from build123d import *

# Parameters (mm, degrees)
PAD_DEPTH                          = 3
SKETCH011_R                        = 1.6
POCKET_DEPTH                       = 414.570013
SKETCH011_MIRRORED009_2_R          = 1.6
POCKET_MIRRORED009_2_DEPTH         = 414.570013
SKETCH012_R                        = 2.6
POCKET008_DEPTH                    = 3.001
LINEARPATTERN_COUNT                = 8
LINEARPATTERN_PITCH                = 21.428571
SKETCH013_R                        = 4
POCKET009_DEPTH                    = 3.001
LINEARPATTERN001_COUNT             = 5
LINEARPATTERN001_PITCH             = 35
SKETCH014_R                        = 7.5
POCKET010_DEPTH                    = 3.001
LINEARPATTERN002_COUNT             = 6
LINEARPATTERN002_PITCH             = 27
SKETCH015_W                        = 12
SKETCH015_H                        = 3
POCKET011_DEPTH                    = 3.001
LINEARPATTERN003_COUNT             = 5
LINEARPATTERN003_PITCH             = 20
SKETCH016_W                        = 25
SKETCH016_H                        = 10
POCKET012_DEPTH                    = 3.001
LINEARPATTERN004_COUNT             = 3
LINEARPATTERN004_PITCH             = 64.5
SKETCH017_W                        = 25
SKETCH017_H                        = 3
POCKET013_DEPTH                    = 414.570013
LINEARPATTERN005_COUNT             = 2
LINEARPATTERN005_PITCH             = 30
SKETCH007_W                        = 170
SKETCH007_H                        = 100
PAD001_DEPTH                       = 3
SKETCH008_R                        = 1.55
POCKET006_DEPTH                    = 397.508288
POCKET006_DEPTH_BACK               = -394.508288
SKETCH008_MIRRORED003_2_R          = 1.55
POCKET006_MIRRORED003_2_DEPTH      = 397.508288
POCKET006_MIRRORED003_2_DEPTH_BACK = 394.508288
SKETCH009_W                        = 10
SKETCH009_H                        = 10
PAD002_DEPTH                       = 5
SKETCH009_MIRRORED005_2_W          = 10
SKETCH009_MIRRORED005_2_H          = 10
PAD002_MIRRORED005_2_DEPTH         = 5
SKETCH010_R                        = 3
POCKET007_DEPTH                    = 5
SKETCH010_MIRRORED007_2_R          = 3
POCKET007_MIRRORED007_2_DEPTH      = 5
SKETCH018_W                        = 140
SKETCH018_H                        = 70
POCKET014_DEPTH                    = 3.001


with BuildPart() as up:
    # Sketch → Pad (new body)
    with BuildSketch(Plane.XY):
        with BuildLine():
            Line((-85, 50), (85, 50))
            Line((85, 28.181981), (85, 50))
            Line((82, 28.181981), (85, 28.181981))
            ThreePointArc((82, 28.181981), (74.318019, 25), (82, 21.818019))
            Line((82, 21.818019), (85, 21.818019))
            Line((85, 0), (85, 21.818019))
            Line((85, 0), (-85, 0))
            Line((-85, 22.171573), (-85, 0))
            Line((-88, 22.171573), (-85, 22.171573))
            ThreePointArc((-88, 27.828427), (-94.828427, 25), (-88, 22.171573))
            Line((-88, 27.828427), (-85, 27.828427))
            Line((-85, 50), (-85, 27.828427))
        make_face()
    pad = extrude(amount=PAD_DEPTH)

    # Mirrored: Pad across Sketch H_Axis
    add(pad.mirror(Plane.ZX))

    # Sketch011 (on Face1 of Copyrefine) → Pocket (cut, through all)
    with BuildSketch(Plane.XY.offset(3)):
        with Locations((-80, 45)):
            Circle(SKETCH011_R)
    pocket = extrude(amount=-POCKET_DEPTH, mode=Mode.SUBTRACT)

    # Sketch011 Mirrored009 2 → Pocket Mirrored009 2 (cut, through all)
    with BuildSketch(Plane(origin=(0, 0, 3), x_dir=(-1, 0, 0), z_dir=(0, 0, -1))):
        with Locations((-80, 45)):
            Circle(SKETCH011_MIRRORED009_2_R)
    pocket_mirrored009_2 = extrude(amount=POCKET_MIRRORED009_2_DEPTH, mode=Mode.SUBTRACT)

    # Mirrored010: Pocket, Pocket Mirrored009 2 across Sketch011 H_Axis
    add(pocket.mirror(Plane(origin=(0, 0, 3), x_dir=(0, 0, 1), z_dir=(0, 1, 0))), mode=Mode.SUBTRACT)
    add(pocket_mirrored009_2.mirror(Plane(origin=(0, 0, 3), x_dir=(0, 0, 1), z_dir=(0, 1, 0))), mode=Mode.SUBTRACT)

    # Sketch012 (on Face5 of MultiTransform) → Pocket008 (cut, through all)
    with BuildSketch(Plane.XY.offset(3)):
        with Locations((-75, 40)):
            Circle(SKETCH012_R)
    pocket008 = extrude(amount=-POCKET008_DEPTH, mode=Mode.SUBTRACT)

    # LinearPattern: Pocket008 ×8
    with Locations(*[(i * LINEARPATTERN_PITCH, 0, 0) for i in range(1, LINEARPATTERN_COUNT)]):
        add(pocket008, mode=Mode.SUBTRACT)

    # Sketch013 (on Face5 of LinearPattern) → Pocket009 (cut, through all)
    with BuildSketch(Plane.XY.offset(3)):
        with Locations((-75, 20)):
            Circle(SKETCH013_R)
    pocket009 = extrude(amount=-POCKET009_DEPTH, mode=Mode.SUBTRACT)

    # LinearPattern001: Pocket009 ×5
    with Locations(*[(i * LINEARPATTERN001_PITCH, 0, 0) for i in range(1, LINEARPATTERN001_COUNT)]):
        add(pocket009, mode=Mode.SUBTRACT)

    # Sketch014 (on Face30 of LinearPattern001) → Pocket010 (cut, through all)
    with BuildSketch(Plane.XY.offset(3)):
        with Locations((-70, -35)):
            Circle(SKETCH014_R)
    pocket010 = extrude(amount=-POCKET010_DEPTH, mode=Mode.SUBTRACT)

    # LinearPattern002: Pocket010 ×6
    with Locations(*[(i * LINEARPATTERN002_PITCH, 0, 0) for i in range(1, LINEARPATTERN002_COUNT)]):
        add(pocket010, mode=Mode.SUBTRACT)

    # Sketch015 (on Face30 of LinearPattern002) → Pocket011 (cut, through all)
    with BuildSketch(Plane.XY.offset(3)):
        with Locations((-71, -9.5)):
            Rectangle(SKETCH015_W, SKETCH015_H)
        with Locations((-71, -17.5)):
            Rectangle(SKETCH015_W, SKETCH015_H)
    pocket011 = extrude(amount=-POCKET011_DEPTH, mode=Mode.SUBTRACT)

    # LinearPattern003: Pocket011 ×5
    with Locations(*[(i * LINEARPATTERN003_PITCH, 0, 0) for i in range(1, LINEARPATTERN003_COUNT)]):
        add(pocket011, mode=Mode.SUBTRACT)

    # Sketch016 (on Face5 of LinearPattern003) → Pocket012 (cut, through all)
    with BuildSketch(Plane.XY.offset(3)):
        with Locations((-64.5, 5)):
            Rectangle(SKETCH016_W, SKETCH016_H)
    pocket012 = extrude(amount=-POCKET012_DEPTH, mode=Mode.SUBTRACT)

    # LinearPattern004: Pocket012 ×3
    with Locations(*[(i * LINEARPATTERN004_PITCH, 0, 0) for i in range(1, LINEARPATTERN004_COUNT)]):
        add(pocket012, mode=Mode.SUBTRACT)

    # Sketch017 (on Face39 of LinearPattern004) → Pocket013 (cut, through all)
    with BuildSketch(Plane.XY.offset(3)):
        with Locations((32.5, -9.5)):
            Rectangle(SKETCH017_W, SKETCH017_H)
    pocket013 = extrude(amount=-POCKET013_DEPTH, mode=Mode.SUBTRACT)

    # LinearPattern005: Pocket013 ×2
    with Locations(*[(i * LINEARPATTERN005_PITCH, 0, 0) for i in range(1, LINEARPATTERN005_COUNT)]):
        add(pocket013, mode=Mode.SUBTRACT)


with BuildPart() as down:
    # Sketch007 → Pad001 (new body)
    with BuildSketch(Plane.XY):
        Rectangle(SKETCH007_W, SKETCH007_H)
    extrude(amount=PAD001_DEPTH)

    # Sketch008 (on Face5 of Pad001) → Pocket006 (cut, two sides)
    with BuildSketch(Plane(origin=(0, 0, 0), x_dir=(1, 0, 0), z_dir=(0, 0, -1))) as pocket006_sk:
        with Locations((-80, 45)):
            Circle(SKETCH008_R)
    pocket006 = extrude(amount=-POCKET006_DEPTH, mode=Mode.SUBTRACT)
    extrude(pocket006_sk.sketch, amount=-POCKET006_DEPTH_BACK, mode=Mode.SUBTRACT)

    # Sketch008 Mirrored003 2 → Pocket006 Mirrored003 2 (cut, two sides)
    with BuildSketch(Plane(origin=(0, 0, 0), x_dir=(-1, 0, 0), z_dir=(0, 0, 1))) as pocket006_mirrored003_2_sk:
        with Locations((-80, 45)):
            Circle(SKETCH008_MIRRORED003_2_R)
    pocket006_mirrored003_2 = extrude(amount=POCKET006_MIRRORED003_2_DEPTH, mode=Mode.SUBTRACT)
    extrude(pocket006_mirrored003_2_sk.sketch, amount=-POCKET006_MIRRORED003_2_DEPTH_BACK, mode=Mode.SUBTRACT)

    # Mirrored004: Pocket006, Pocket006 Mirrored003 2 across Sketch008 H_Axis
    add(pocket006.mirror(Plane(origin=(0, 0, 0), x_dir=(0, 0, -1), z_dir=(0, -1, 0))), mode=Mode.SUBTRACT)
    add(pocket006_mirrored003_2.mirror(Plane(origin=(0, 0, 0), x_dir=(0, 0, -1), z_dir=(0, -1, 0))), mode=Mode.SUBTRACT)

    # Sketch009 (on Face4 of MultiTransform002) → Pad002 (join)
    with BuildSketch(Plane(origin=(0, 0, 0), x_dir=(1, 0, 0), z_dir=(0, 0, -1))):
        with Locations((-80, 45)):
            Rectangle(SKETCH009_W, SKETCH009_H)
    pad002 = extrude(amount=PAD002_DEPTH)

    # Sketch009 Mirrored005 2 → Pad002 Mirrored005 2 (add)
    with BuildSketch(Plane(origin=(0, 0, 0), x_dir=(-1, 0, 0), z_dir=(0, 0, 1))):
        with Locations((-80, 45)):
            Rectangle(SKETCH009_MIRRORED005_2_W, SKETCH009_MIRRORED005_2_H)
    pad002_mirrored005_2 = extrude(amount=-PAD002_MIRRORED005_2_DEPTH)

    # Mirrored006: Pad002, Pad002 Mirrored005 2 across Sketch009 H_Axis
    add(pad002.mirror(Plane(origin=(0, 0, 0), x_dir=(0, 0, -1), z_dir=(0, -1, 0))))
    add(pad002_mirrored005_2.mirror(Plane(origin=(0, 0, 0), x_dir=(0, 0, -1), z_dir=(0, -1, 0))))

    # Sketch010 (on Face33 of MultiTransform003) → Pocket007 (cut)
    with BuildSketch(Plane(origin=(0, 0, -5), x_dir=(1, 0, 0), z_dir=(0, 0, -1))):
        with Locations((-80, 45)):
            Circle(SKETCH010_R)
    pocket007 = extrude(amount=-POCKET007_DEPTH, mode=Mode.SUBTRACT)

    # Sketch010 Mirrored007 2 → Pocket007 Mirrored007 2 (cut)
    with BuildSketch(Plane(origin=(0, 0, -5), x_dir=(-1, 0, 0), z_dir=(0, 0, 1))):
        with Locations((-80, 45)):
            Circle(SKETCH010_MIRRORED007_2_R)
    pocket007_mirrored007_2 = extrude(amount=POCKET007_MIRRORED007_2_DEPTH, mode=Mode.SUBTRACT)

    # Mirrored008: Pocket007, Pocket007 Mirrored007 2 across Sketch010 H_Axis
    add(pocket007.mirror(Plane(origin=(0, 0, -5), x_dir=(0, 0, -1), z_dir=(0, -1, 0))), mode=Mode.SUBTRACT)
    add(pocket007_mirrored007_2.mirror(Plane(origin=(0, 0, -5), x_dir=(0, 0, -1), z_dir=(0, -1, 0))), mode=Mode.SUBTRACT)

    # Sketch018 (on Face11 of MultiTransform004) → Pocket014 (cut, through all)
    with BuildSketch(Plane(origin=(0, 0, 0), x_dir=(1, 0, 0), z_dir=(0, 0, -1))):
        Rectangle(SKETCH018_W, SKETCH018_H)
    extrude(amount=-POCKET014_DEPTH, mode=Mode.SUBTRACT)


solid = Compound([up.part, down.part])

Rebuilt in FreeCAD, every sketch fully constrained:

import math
import FreeCAD as App
import Part
import Sketcher
Q = App.Units.Quantity

doc = App.newDocument("Part")
body = doc.addObject("PartDesign::Body", "Body")

sketch1 = doc.addObject("Sketcher::SketchObject", "Sketch")
body.addObject(sketch1)
sketch1.AttachmentSupport = (doc.XY_Plane, [""])
sketch1.MapMode = "FlatFace"
sketch1.addGeometry(Part.LineSegment(App.Vector(85, 50, 0), App.Vector(-85, 50, 0)), False)
sketch1.addGeometry(Part.LineSegment(App.Vector(-85, 50, 0), App.Vector(-85, 27.828427, 0)), False)
sketch1.addGeometry(Part.LineSegment(App.Vector(-85, 27.828427, 0), App.Vector(-88, 27.828427, 0)), False)
sketch1.addGeometry(Part.ArcOfCircle(Part.Circle(App.Vector(-90.828427, 25, 0), App.Vector(0, 0, 1), 4), math.radians(44.999999), math.radians(315.000001)), False)
sketch1.addGeometry(Part.LineSegment(App.Vector(-88, 22.171573, 0), App.Vector(-85, 22.171573, 0)), False)
sketch1.addGeometry(Part.LineSegment(App.Vector(-85, 22.171573, 0), App.Vector(-85, 0, 0)), False)
sketch1.addGeometry(Part.LineSegment(App.Vector(-85, 0, 0), App.Vector(85, 0, 0)), False)
sketch1.addGeometry(Part.LineSegment(App.Vector(85, 0, 0), App.Vector(85, 21.818019, 0)), False)
sketch1.addGeometry(Part.LineSegment(App.Vector(85, 21.818019, 0), App.Vector(82, 21.818019, 0)), False)
sketch1.addGeometry(Part.ArcOfCircle(Part.Circle(App.Vector(78.818019, 25, 0), App.Vector(0, 0, 1), 4.5), math.radians(45.000004), math.radians(314.999996)), False)
sketch1.addGeometry(Part.LineSegment(App.Vector(82, 28.181981, 0), App.Vector(85, 28.181981, 0)), False)
sketch1.addGeometry(Part.LineSegment(App.Vector(85, 28.181981, 0), App.Vector(85, 50, 0)), False)
sketch1.addConstraint(Sketcher.Constraint("Coincident", 0, 2, 1, 1))
sketch1.addConstraint(Sketcher.Constraint("Coincident", 1, 2, 2, 1))
sketch1.addConstraint(Sketcher.Constraint("Coincident", 2, 2, 3, 1))
sketch1.addConstraint(Sketcher.Constraint("Coincident", 3, 2, 4, 1))
sketch1.addConstraint(Sketcher.Constraint("Coincident", 4, 2, 5, 1))
sketch1.addConstraint(Sketcher.Constraint("Coincident", 5, 2, 6, 1))
sketch1.addConstraint(Sketcher.Constraint("Coincident", 6, 2, 7, 1))
sketch1.addConstraint(Sketcher.Constraint("Coincident", 7, 2, 8, 1))
sketch1.addConstraint(Sketcher.Constraint("Coincident", 8, 2, 9, 2))
sketch1.addConstraint(Sketcher.Constraint("Coincident", 9, 1, 10, 1))
sketch1.addConstraint(Sketcher.Constraint("Coincident", 10, 2, 11, 1))
sketch1.addConstraint(Sketcher.Constraint("Coincident", 11, 2, 0, 1))
sketch1.addConstraint(Sketcher.Constraint("Horizontal", 0))
sketch1.addConstraint(Sketcher.Constraint("Vertical", 1))
sketch1.addConstraint(Sketcher.Constraint("Horizontal", 2))
sketch1.addConstraint(Sketcher.Constraint("Horizontal", 4))
sketch1.addConstraint(Sketcher.Constraint("Vertical", 5))
sketch1.addConstraint(Sketcher.Constraint("Horizontal", 6))
sketch1.addConstraint(Sketcher.Constraint("Vertical", 7))
sketch1.addConstraint(Sketcher.Constraint("Horizontal", 8))
sketch1.addConstraint(Sketcher.Constraint("Horizontal", 10))
sketch1.addConstraint(Sketcher.Constraint("Vertical", 11))
sketch1.addConstraint(Sketcher.Constraint("Symmetric", 5, 2, 6, 2, -1, 1))
sketch1.addConstraint(Sketcher.Constraint("Horizontal", 3, 3, 9, 3))
sketch1.addConstraint(Sketcher.Constraint("Vertical", 2, 2, 3, 2))
sketch1.addConstraint(Sketcher.Constraint("Vertical", 1, 2, 4, 2))
sketch1.addConstraint(Sketcher.Constraint("Vertical", 8, 2, 9, 1))
sketch1.addConstraint(Sketcher.Constraint("Vertical", 7, 2, 10, 2))
sketch1.addConstraint(Sketcher.Constraint("Equal", 4, 8))
sketch1.addConstraint(Sketcher.Constraint("Equal", 1, 5))
sketch1.addConstraint(Sketcher.Constraint("Radius", 3, Q("4 mm")))
sketch1.addConstraint(Sketcher.Constraint("Radius", 9, Q("4.5 mm")))
sketch1.addConstraint(Sketcher.Constraint("DistanceX", 0, 2, 0, 1, Q("170 mm")))
sketch1.addConstraint(Sketcher.Constraint("DistanceX", 2, 2, 2, 1, Q("3 mm")))
sketch1.addConstraint(Sketcher.Constraint("DistanceY", -1, 1, 3, 3, Q("25 mm")))
sketch1.addConstraint(Sketcher.Constraint("DistanceY", 7, 1, 7, 2, Q("21.818019 mm")))
sketch1.addConstraint(Sketcher.Constraint("DistanceY", 1, 2, 1, 1, Q("22.171573 mm")))
pad1 = doc.addObject("PartDesign::Pad", "Pad")
body.addObject(pad1)
pad1.Profile = sketch1
pad1.Length = 3
doc.recompute()

mirrored = doc.addObject("PartDesign::Mirrored", "Mirrored")
body.addObject(mirrored)
mirrored.Originals = [pad1]
mirrored.MirrorPlane = (doc.XZ_Plane, [""])
body.Tip = mirrored

sketch2 = doc.addObject("Sketcher::SketchObject", "Sketch001")
body.addObject(sketch2)
sketch2.AttachmentSupport = (doc.XY_Plane, [""])
sketch2.MapMode = "FlatFace"
sketch2.AttachmentOffset = App.Placement(App.Vector(0, 0, 3), App.Rotation())
sketch2.addGeometry(Part.Circle(App.Vector(-80, 45, 0), App.Vector(0, 0, 1), 1.6), False)
sketch2.addConstraint(Sketcher.Constraint("Diameter", 0, Q("3.2 mm")))
sketch2.addConstraint(Sketcher.Constraint("DistanceX", 0, 3, -1, 1, Q("80 mm")))
sketch2.addConstraint(Sketcher.Constraint("DistanceY", -1, 1, 0, 3, Q("45 mm")))
pocket1 = doc.addObject("PartDesign::Pocket", "Pocket")
body.addObject(pocket1)
pocket1.Profile = sketch2
pocket1.Type = "ThroughAll"

sketch3 = doc.addObject("Sketcher::SketchObject", "Sketch002")
body.addObject(sketch3)
sketch3.AttachmentSupport = (doc.XY_Plane, [""])
sketch3.MapMode = "FlatFace"
sketch3.AttachmentOffset = App.Placement(App.Vector(0, 0, 3), App.Rotation())
sketch3.addGeometry(Part.Circle(App.Vector(80, 45, 0), App.Vector(0, 0, 1), 1.6), False)
sketch3.addConstraint(Sketcher.Constraint("Diameter", 0, Q("3.2 mm")))
sketch3.addConstraint(Sketcher.Constraint("DistanceX", -1, 1, 0, 3, Q("80 mm")))
sketch3.addConstraint(Sketcher.Constraint("DistanceY", -1, 1, 0, 3, Q("45 mm")))
pocket2 = doc.addObject("PartDesign::Pocket", "Pocket001")
body.addObject(pocket2)
pocket2.Profile = sketch3
pocket2.Type = "ThroughAll"
doc.recompute()

mirrored2 = doc.addObject("PartDesign::Mirrored", "Mirrored001")
body.addObject(mirrored2)
mirrored2.Originals = [pocket1, pocket2]
mirrored2.MirrorPlane = (doc.XZ_Plane, [""])
body.Tip = mirrored2

sketch4 = doc.addObject("Sketcher::SketchObject", "Sketch003")
body.addObject(sketch4)
sketch4.AttachmentSupport = (doc.XY_Plane, [""])
sketch4.MapMode = "FlatFace"
sketch4.AttachmentOffset = App.Placement(App.Vector(0, 0, 3), App.Rotation())
sketch4.addGeometry(Part.Circle(App.Vector(-75, 40, 0), App.Vector(0, 0, 1), 2.6), False)
sketch4.addConstraint(Sketcher.Constraint("Diameter", 0, Q("5.2 mm")))
sketch4.addConstraint(Sketcher.Constraint("DistanceX", 0, 3, -1, 1, Q("75 mm")))
sketch4.addConstraint(Sketcher.Constraint("DistanceY", -1, 1, 0, 3, Q("40 mm")))
pocket3 = doc.addObject("PartDesign::Pocket", "Pocket002")
body.addObject(pocket3)
pocket3.Profile = sketch4
pocket3.Type = "ThroughAll"
doc.recompute()

linearpattern = doc.addObject("PartDesign::LinearPattern", "LinearPattern")
body.addObject(linearpattern)
linearpattern.Originals = [pocket3]
linearpattern.Direction = (doc.X_Axis, [""])
linearpattern.Mode = "offset"
linearpattern.Offset = 21.428571
linearpattern.Occurrences = 8
body.Tip = linearpattern

sketch5 = doc.addObject("Sketcher::SketchObject", "Sketch004")
body.addObject(sketch5)
sketch5.AttachmentSupport = (doc.XY_Plane, [""])
sketch5.MapMode = "FlatFace"
sketch5.AttachmentOffset = App.Placement(App.Vector(0, 0, 3), App.Rotation())
sketch5.addGeometry(Part.Circle(App.Vector(-75, 20, 0), App.Vector(0, 0, 1), 4), False)
sketch5.addConstraint(Sketcher.Constraint("Diameter", 0, Q("8 mm")))
sketch5.addConstraint(Sketcher.Constraint("DistanceX", 0, 3, -1, 1, Q("75 mm")))
sketch5.addConstraint(Sketcher.Constraint("DistanceY", -1, 1, 0, 3, Q("20 mm")))
pocket4 = doc.addObject("PartDesign::Pocket", "Pocket003")
body.addObject(pocket4)
pocket4.Profile = sketch5
pocket4.Type = "ThroughAll"
doc.recompute()

linearpattern2 = doc.addObject("PartDesign::LinearPattern", "LinearPattern001")
body.addObject(linearpattern2)
linearpattern2.Originals = [pocket4]
linearpattern2.Direction = (doc.X_Axis, [""])
linearpattern2.Mode = "offset"
linearpattern2.Offset = 35
linearpattern2.Occurrences = 5
body.Tip = linearpattern2

sketch6 = doc.addObject("Sketcher::SketchObject", "Sketch005")
body.addObject(sketch6)
sketch6.AttachmentSupport = (doc.XY_Plane, [""])
sketch6.MapMode = "FlatFace"
sketch6.AttachmentOffset = App.Placement(App.Vector(0, 0, 3), App.Rotation())
sketch6.addGeometry(Part.Circle(App.Vector(-70, -35, 0), App.Vector(0, 0, 1), 7.5), False)
sketch6.addConstraint(Sketcher.Constraint("Diameter", 0, Q("15 mm")))
sketch6.addConstraint(Sketcher.Constraint("DistanceX", 0, 3, -1, 1, Q("70 mm")))
sketch6.addConstraint(Sketcher.Constraint("DistanceY", 0, 3, -1, 1, Q("35 mm")))
pocket5 = doc.addObject("PartDesign::Pocket", "Pocket004")
body.addObject(pocket5)
pocket5.Profile = sketch6
pocket5.Type = "ThroughAll"
doc.recompute()

linearpattern3 = doc.addObject("PartDesign::LinearPattern", "LinearPattern002")
body.addObject(linearpattern3)
linearpattern3.Originals = [pocket5]
linearpattern3.Direction = (doc.X_Axis, [""])
linearpattern3.Mode = "offset"
linearpattern3.Offset = 27
linearpattern3.Occurrences = 6
body.Tip = linearpattern3

sketch7 = doc.addObject("Sketcher::SketchObject", "Sketch006")
body.addObject(sketch7)
sketch7.AttachmentSupport = (doc.XY_Plane, [""])
sketch7.MapMode = "FlatFace"
sketch7.AttachmentOffset = App.Placement(App.Vector(0, 0, 3), App.Rotation())
sketch7.addGeometry(Part.LineSegment(App.Vector(-77, -8, 0), App.Vector(-77, -11, 0)), False)
sketch7.addGeometry(Part.LineSegment(App.Vector(-77, -11, 0), App.Vector(-65, -11, 0)), False)
sketch7.addGeometry(Part.LineSegment(App.Vector(-65, -11, 0), App.Vector(-65, -8, 0)), False)
sketch7.addGeometry(Part.LineSegment(App.Vector(-65, -8, 0), App.Vector(-77, -8, 0)), False)
sketch7.addGeometry(Part.LineSegment(App.Vector(-77, -16, 0), App.Vector(-77, -19, 0)), False)
sketch7.addGeometry(Part.LineSegment(App.Vector(-77, -19, 0), App.Vector(-65, -19, 0)), False)
sketch7.addGeometry(Part.LineSegment(App.Vector(-65, -19, 0), App.Vector(-65, -16, 0)), False)
sketch7.addGeometry(Part.LineSegment(App.Vector(-65, -16, 0), App.Vector(-77, -16, 0)), False)
sketch7.addConstraint(Sketcher.Constraint("Coincident", 0, 2, 1, 1))
sketch7.addConstraint(Sketcher.Constraint("Coincident", 1, 2, 2, 1))
sketch7.addConstraint(Sketcher.Constraint("Coincident", 2, 2, 3, 1))
sketch7.addConstraint(Sketcher.Constraint("Coincident", 3, 2, 0, 1))
sketch7.addConstraint(Sketcher.Constraint("Coincident", 4, 2, 5, 1))
sketch7.addConstraint(Sketcher.Constraint("Coincident", 5, 2, 6, 1))
sketch7.addConstraint(Sketcher.Constraint("Coincident", 6, 2, 7, 1))
sketch7.addConstraint(Sketcher.Constraint("Coincident", 7, 2, 4, 1))
sketch7.addConstraint(Sketcher.Constraint("Vertical", 0))
sketch7.addConstraint(Sketcher.Constraint("Horizontal", 1))
sketch7.addConstraint(Sketcher.Constraint("Vertical", 2))
sketch7.addConstraint(Sketcher.Constraint("Horizontal", 3))
sketch7.addConstraint(Sketcher.Constraint("Vertical", 4))
sketch7.addConstraint(Sketcher.Constraint("Horizontal", 5))
sketch7.addConstraint(Sketcher.Constraint("Vertical", 6))
sketch7.addConstraint(Sketcher.Constraint("Horizontal", 7))
sketch7.addConstraint(Sketcher.Constraint("Vertical", 3, 2, 4, 2))
sketch7.addConstraint(Sketcher.Constraint("Vertical", 2, 2, 5, 2))
sketch7.addConstraint(Sketcher.Constraint("Equal", 2, 4))
sketch7.addConstraint(Sketcher.Constraint("DistanceX", 1, 1, 1, 2, Q("12 mm")))
sketch7.addConstraint(Sketcher.Constraint("DistanceY", 0, 2, 0, 1, Q("3 mm")))
sketch7.addConstraint(Sketcher.Constraint("DistanceX", 0, 2, -1, 1, Q("77 mm")))
sketch7.addConstraint(Sketcher.Constraint("DistanceY", 0, 2, -1, 1, Q("11 mm")))
sketch7.addConstraint(Sketcher.Constraint("DistanceY", 4, 2, -1, 1, Q("19 mm")))
pocket6 = doc.addObject("PartDesign::Pocket", "Pocket005")
body.addObject(pocket6)
pocket6.Profile = sketch7
pocket6.Type = "ThroughAll"
doc.recompute()

linearpattern4 = doc.addObject("PartDesign::LinearPattern", "LinearPattern003")
body.addObject(linearpattern4)
linearpattern4.Originals = [pocket6]
linearpattern4.Direction = (doc.X_Axis, [""])
linearpattern4.Mode = "offset"
linearpattern4.Offset = 20
linearpattern4.Occurrences = 5
body.Tip = linearpattern4

sketch8 = doc.addObject("Sketcher::SketchObject", "Sketch007")
body.addObject(sketch8)
sketch8.AttachmentSupport = (doc.XY_Plane, [""])
sketch8.MapMode = "FlatFace"
sketch8.AttachmentOffset = App.Placement(App.Vector(0, 0, 3), App.Rotation())
sketch8.addGeometry(Part.LineSegment(App.Vector(-77, 10, 0), App.Vector(-77, 0, 0)), False)
sketch8.addGeometry(Part.LineSegment(App.Vector(-77, 0, 0), App.Vector(-52, 0, 0)), False)
sketch8.addGeometry(Part.LineSegment(App.Vector(-52, 0, 0), App.Vector(-52, 10, 0)), False)
sketch8.addGeometry(Part.LineSegment(App.Vector(-52, 10, 0), App.Vector(-77, 10, 0)), False)
sketch8.addConstraint(Sketcher.Constraint("Coincident", 0, 2, 1, 1))
sketch8.addConstraint(Sketcher.Constraint("Coincident", 1, 2, 2, 1))
sketch8.addConstraint(Sketcher.Constraint("Coincident", 2, 2, 3, 1))
sketch8.addConstraint(Sketcher.Constraint("Coincident", 3, 2, 0, 1))
sketch8.addConstraint(Sketcher.Constraint("Vertical", 0))
sketch8.addConstraint(Sketcher.Constraint("Horizontal", 1))
sketch8.addConstraint(Sketcher.Constraint("Vertical", 2))
sketch8.addConstraint(Sketcher.Constraint("Horizontal", 3))
sketch8.addConstraint(Sketcher.Constraint("PointOnObject", 0, 2, -1))
sketch8.addConstraint(Sketcher.Constraint("DistanceX", 1, 1, 1, 2, Q("25 mm")))
sketch8.addConstraint(Sketcher.Constraint("DistanceY", 0, 2, 0, 1, Q("10 mm")))
sketch8.addConstraint(Sketcher.Constraint("DistanceX", 0, 2, -1, 1, Q("77 mm")))
pocket7 = doc.addObject("PartDesign::Pocket", "Pocket006")
body.addObject(pocket7)
pocket7.Profile = sketch8
pocket7.Type = "ThroughAll"
doc.recompute()

linearpattern5 = doc.addObject("PartDesign::LinearPattern", "LinearPattern004")
body.addObject(linearpattern5)
linearpattern5.Originals = [pocket7]
linearpattern5.Direction = (doc.X_Axis, [""])
linearpattern5.Mode = "offset"
linearpattern5.Offset = 64.5
linearpattern5.Occurrences = 3
body.Tip = linearpattern5

sketch9 = doc.addObject("Sketcher::SketchObject", "Sketch008")
body.addObject(sketch9)
sketch9.AttachmentSupport = (doc.XY_Plane, [""])
sketch9.MapMode = "FlatFace"
sketch9.AttachmentOffset = App.Placement(App.Vector(0, 0, 3), App.Rotation())
sketch9.addGeometry(Part.LineSegment(App.Vector(20, -8, 0), App.Vector(20, -11, 0)), False)
sketch9.addGeometry(Part.LineSegment(App.Vector(20, -11, 0), App.Vector(45, -11, 0)), False)
sketch9.addGeometry(Part.LineSegment(App.Vector(45, -11, 0), App.Vector(45, -8, 0)), False)
sketch9.addGeometry(Part.LineSegment(App.Vector(45, -8, 0), App.Vector(20, -8, 0)), False)
sketch9.addConstraint(Sketcher.Constraint("Coincident", 0, 2, 1, 1))
sketch9.addConstraint(Sketcher.Constraint("Coincident", 1, 2, 2, 1))
sketch9.addConstraint(Sketcher.Constraint("Coincident", 2, 2, 3, 1))
sketch9.addConstraint(Sketcher.Constraint("Coincident", 3, 2, 0, 1))
sketch9.addConstraint(Sketcher.Constraint("Vertical", 0))
sketch9.addConstraint(Sketcher.Constraint("Horizontal", 1))
sketch9.addConstraint(Sketcher.Constraint("Vertical", 2))
sketch9.addConstraint(Sketcher.Constraint("Horizontal", 3))
sketch9.addConstraint(Sketcher.Constraint("DistanceX", 1, 1, 1, 2, Q("25 mm")))
sketch9.addConstraint(Sketcher.Constraint("DistanceY", 0, 2, 0, 1, Q("3 mm")))
sketch9.addConstraint(Sketcher.Constraint("DistanceX", -1, 1, 0, 2, Q("20 mm")))
sketch9.addConstraint(Sketcher.Constraint("DistanceY", 0, 2, -1, 1, Q("11 mm")))
pocket8 = doc.addObject("PartDesign::Pocket", "Pocket007")
body.addObject(pocket8)
pocket8.Profile = sketch9
pocket8.Type = "ThroughAll"
doc.recompute()

linearpattern6 = doc.addObject("PartDesign::LinearPattern", "LinearPattern005")
body.addObject(linearpattern6)
linearpattern6.Originals = [pocket8]
linearpattern6.Direction = (doc.X_Axis, [""])
linearpattern6.Mode = "offset"
linearpattern6.Offset = 30
linearpattern6.Occurrences = 2
body.Tip = linearpattern6
body2 = doc.addObject("PartDesign::Body", "Body001")

sketch10 = doc.addObject("Sketcher::SketchObject", "Sketch009")
body2.addObject(sketch10)
sketch10.AttachmentSupport = (doc.getObject("XY_Plane001"), [""])
sketch10.MapMode = "FlatFace"
sketch10.addGeometry(Part.LineSegment(App.Vector(-85, 50, 0), App.Vector(-85, -50, 0)), False)
sketch10.addGeometry(Part.LineSegment(App.Vector(-85, -50, 0), App.Vector(85, -50, 0)), False)
sketch10.addGeometry(Part.LineSegment(App.Vector(85, -50, 0), App.Vector(85, 50, 0)), False)
sketch10.addGeometry(Part.LineSegment(App.Vector(85, 50, 0), App.Vector(-85, 50, 0)), False)
sketch10.addConstraint(Sketcher.Constraint("Coincident", 0, 2, 1, 1))
sketch10.addConstraint(Sketcher.Constraint("Coincident", 1, 2, 2, 1))
sketch10.addConstraint(Sketcher.Constraint("Coincident", 2, 2, 3, 1))
sketch10.addConstraint(Sketcher.Constraint("Coincident", 3, 2, 0, 1))
sketch10.addConstraint(Sketcher.Constraint("Vertical", 0))
sketch10.addConstraint(Sketcher.Constraint("Horizontal", 1))
sketch10.addConstraint(Sketcher.Constraint("Vertical", 2))
sketch10.addConstraint(Sketcher.Constraint("Horizontal", 3))
sketch10.addConstraint(Sketcher.Constraint("Symmetric", 0, 2, 2, 2, -1, 1))
sketch10.addConstraint(Sketcher.Constraint("DistanceX", 1, 1, 1, 2, Q("170 mm")))
sketch10.addConstraint(Sketcher.Constraint("DistanceY", 0, 2, 0, 1, Q("100 mm")))
pad2 = doc.addObject("PartDesign::Pad", "Pad001")
body2.addObject(pad2)
pad2.Profile = sketch10
pad2.Length = 3

sketch11 = doc.addObject("Sketcher::SketchObject", "Sketch010")
body2.addObject(sketch11)
sketch11.AttachmentSupport = (doc.getObject("XY_Plane001"), [""])
sketch11.MapMode = "FlatFace"
sketch11.addGeometry(Part.Circle(App.Vector(-80, -45, 0), App.Vector(0, 0, 1), 1.55), False)
sketch11.addConstraint(Sketcher.Constraint("Diameter", 0, Q("3.1 mm")))
sketch11.addConstraint(Sketcher.Constraint("DistanceX", 0, 3, -1, 1, Q("80 mm")))
sketch11.addConstraint(Sketcher.Constraint("DistanceY", 0, 3, -1, 1, Q("45 mm")))
pocket9 = doc.addObject("PartDesign::Pocket", "Pocket008")
body2.addObject(pocket9)
pocket9.Profile = sketch11
pocket9.Type = "ThroughAll"
pocket9.Midplane = True

sketch12 = doc.addObject("Sketcher::SketchObject", "Sketch011")
body2.addObject(sketch12)
sketch12.AttachmentSupport = (doc.getObject("XY_Plane001"), [""])
sketch12.MapMode = "FlatFace"
sketch12.addGeometry(Part.Circle(App.Vector(80, -45, 0), App.Vector(0, 0, 1), 1.55), False)
sketch12.addConstraint(Sketcher.Constraint("Diameter", 0, Q("3.1 mm")))
sketch12.addConstraint(Sketcher.Constraint("DistanceX", -1, 1, 0, 3, Q("80 mm")))
sketch12.addConstraint(Sketcher.Constraint("DistanceY", 0, 3, -1, 1, Q("45 mm")))
pocket10 = doc.addObject("PartDesign::Pocket", "Pocket009")
body2.addObject(pocket10)
pocket10.Profile = sketch12
pocket10.Type = "ThroughAll"
pocket10.Midplane = True
doc.recompute()

mirrored3 = doc.addObject("PartDesign::Mirrored", "Mirrored002")
body2.addObject(mirrored3)
mirrored3.Originals = [pocket9, pocket10]
mirrored3.MirrorPlane = (doc.getObject("XZ_Plane001"), [""])
body2.Tip = mirrored3

sketch13 = doc.addObject("Sketcher::SketchObject", "Sketch012")
body2.addObject(sketch13)
sketch13.AttachmentSupport = (doc.getObject("XY_Plane001"), [""])
sketch13.MapMode = "FlatFace"
sketch13.addGeometry(Part.LineSegment(App.Vector(-85, -50, 0), App.Vector(-85, -40, 0)), False)
sketch13.addGeometry(Part.LineSegment(App.Vector(-85, -40, 0), App.Vector(-75, -40, 0)), False)
sketch13.addGeometry(Part.LineSegment(App.Vector(-75, -40, 0), App.Vector(-75, -50, 0)), False)
sketch13.addGeometry(Part.LineSegment(App.Vector(-75, -50, 0), App.Vector(-85, -50, 0)), False)
sketch13.addConstraint(Sketcher.Constraint("Coincident", 0, 2, 1, 1))
sketch13.addConstraint(Sketcher.Constraint("Coincident", 1, 2, 2, 1))
sketch13.addConstraint(Sketcher.Constraint("Coincident", 2, 2, 3, 1))
sketch13.addConstraint(Sketcher.Constraint("Coincident", 3, 2, 0, 1))
sketch13.addConstraint(Sketcher.Constraint("Vertical", 0))
sketch13.addConstraint(Sketcher.Constraint("Horizontal", 1))
sketch13.addConstraint(Sketcher.Constraint("Vertical", 2))
sketch13.addConstraint(Sketcher.Constraint("Horizontal", 3))
sketch13.addConstraint(Sketcher.Constraint("Equal", 3, 0))
sketch13.addConstraint(Sketcher.Constraint("DistanceX", 1, 1, 1, 2, Q("10 mm")))
sketch13.addConstraint(Sketcher.Constraint("DistanceX", 0, 2, -1, 1, Q("85 mm")))
sketch13.addConstraint(Sketcher.Constraint("DistanceY", 0, 2, -1, 1, Q("40 mm")))
pad3 = doc.addObject("PartDesign::Pad", "Pad002")
body2.addObject(pad3)
pad3.Profile = sketch13
pad3.Length = 5
pad3.Reversed = True

sketch14 = doc.addObject("Sketcher::SketchObject", "Sketch013")
body2.addObject(sketch14)
sketch14.AttachmentSupport = (doc.getObject("XY_Plane001"), [""])
sketch14.MapMode = "FlatFace"
sketch14.addGeometry(Part.LineSegment(App.Vector(85, -50, 0), App.Vector(85, -40, 0)), False)
sketch14.addGeometry(Part.LineSegment(App.Vector(85, -40, 0), App.Vector(75, -40, 0)), False)
sketch14.addGeometry(Part.LineSegment(App.Vector(75, -40, 0), App.Vector(75, -50, 0)), False)
sketch14.addGeometry(Part.LineSegment(App.Vector(75, -50, 0), App.Vector(85, -50, 0)), False)
sketch14.addConstraint(Sketcher.Constraint("Coincident", 0, 2, 1, 1))
sketch14.addConstraint(Sketcher.Constraint("Coincident", 1, 2, 2, 1))
sketch14.addConstraint(Sketcher.Constraint("Coincident", 2, 2, 3, 1))
sketch14.addConstraint(Sketcher.Constraint("Coincident", 3, 2, 0, 1))
sketch14.addConstraint(Sketcher.Constraint("Vertical", 0))
sketch14.addConstraint(Sketcher.Constraint("Horizontal", 1))
sketch14.addConstraint(Sketcher.Constraint("Vertical", 2))
sketch14.addConstraint(Sketcher.Constraint("Horizontal", 3))
sketch14.addConstraint(Sketcher.Constraint("Equal", 3, 0))
sketch14.addConstraint(Sketcher.Constraint("DistanceX", 1, 2, 1, 1, Q("10 mm")))
sketch14.addConstraint(Sketcher.Constraint("DistanceX", -1, 1, 0, 2, Q("85 mm")))
sketch14.addConstraint(Sketcher.Constraint("DistanceY", 0, 2, -1, 1, Q("40 mm")))
pad4 = doc.addObject("PartDesign::Pad", "Pad003")
body2.addObject(pad4)
pad4.Profile = sketch14
pad4.Length = 5
pad4.Reversed = True
doc.recompute()

mirrored4 = doc.addObject("PartDesign::Mirrored", "Mirrored003")
body2.addObject(mirrored4)
mirrored4.Originals = [pad3, pad4]
mirrored4.MirrorPlane = (doc.getObject("XZ_Plane001"), [""])
body2.Tip = mirrored4

sketch15 = doc.addObject("Sketcher::SketchObject", "Sketch014")
body2.addObject(sketch15)
sketch15.AttachmentSupport = (doc.getObject("XY_Plane001"), [""])
sketch15.MapMode = "FlatFace"
sketch15.AttachmentOffset = App.Placement(App.Vector(0, 0, -5), App.Rotation())
sketch15.addGeometry(Part.Circle(App.Vector(-80, -45, 0), App.Vector(0, 0, 1), 3), False)
sketch15.addConstraint(Sketcher.Constraint("Diameter", 0, Q("6 mm")))
sketch15.addConstraint(Sketcher.Constraint("DistanceX", 0, 3, -1, 1, Q("80 mm")))
sketch15.addConstraint(Sketcher.Constraint("DistanceY", 0, 3, -1, 1, Q("45 mm")))
pocket11 = doc.addObject("PartDesign::Pocket", "Pocket010")
body2.addObject(pocket11)
pocket11.Profile = sketch15
pocket11.Length = 5
pocket11.Reversed = True

sketch16 = doc.addObject("Sketcher::SketchObject", "Sketch015")
body2.addObject(sketch16)
sketch16.AttachmentSupport = (doc.getObject("XY_Plane001"), [""])
sketch16.MapMode = "FlatFace"
sketch16.AttachmentOffset = App.Placement(App.Vector(0, 0, -5), App.Rotation())
sketch16.addGeometry(Part.Circle(App.Vector(80, -45, 0), App.Vector(0, 0, 1), 3), False)
sketch16.addConstraint(Sketcher.Constraint("Diameter", 0, Q("6 mm")))
sketch16.addConstraint(Sketcher.Constraint("DistanceX", -1, 1, 0, 3, Q("80 mm")))
sketch16.addConstraint(Sketcher.Constraint("DistanceY", 0, 3, -1, 1, Q("45 mm")))
pocket12 = doc.addObject("PartDesign::Pocket", "Pocket011")
body2.addObject(pocket12)
pocket12.Profile = sketch16
pocket12.Length = 5
pocket12.Reversed = True
doc.recompute()

mirrored5 = doc.addObject("PartDesign::Mirrored", "Mirrored004")
body2.addObject(mirrored5)
mirrored5.Originals = [pocket11, pocket12]
mirrored5.MirrorPlane = (doc.getObject("XZ_Plane001"), [""])
body2.Tip = mirrored5

sketch17 = doc.addObject("Sketcher::SketchObject", "Sketch016")
body2.addObject(sketch17)
sketch17.AttachmentSupport = (doc.getObject("XY_Plane001"), [""])
sketch17.MapMode = "FlatFace"
sketch17.addGeometry(Part.LineSegment(App.Vector(-70, -35, 0), App.Vector(-70, 35, 0)), False)
sketch17.addGeometry(Part.LineSegment(App.Vector(-70, 35, 0), App.Vector(70, 35, 0)), False)
sketch17.addGeometry(Part.LineSegment(App.Vector(70, 35, 0), App.Vector(70, -35, 0)), False)
sketch17.addGeometry(Part.LineSegment(App.Vector(70, -35, 0), App.Vector(-70, -35, 0)), False)
sketch17.addConstraint(Sketcher.Constraint("Coincident", 0, 2, 1, 1))
sketch17.addConstraint(Sketcher.Constraint("Coincident", 1, 2, 2, 1))
sketch17.addConstraint(Sketcher.Constraint("Coincident", 2, 2, 3, 1))
sketch17.addConstraint(Sketcher.Constraint("Coincident", 3, 2, 0, 1))
sketch17.addConstraint(Sketcher.Constraint("Vertical", 0))
sketch17.addConstraint(Sketcher.Constraint("Horizontal", 1))
sketch17.addConstraint(Sketcher.Constraint("Vertical", 2))
sketch17.addConstraint(Sketcher.Constraint("Horizontal", 3))
sketch17.addConstraint(Sketcher.Constraint("Symmetric", 0, 2, 2, 2, -1, 1))
sketch17.addConstraint(Sketcher.Constraint("DistanceX", 1, 1, 1, 2, Q("140 mm")))
sketch17.addConstraint(Sketcher.Constraint("DistanceY", 0, 1, 0, 2, Q("70 mm")))
pocket13 = doc.addObject("PartDesign::Pocket", "Pocket012")
body2.addObject(pocket13)
pocket13.Profile = sketch17
pocket13.Type = "ThroughAll"
pocket13.Reversed = True

doc.recompute()
